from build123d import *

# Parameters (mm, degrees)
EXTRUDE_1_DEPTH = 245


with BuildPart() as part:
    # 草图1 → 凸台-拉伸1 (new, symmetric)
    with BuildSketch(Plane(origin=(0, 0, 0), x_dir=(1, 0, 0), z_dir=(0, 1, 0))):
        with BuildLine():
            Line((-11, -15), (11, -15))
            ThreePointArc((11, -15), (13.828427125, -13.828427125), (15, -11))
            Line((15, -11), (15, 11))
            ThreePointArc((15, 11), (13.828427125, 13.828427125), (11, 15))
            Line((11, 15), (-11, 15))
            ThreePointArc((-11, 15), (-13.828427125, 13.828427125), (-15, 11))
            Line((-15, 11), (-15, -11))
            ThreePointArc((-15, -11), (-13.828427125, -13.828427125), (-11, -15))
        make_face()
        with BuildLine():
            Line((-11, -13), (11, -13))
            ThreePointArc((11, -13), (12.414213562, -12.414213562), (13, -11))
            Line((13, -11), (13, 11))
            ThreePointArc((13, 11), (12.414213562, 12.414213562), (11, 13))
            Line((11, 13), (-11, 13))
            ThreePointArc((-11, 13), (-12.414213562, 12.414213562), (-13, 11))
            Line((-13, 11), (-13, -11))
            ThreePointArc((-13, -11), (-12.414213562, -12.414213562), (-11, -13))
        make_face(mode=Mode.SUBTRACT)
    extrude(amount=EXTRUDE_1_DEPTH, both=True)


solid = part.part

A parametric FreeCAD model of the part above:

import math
import FreeCAD as App
import Part
import Sketcher
from FreeCAD import Vector

doc = App.newDocument("Part")
params = doc.addObject("Spreadsheet::Sheet", "Params")
for row, (alias, value) in enumerate([
    ("sketch1_radius", "4 mm"),
    ("sketch1_radius2", "2 mm"),
    ("sketch1_width", "22 mm"),
    ("pad1_length", "490 mm"),
], start=1):
    params.set(f"A{row}", alias)
    params.set(f"B{row}", "=" + value)
    params.setAlias(f"B{row}", alias)

body = doc.addObject("PartDesign::Body", "Body")

# Sketch on XZ plane
sketch1 = body.newObject("Sketcher::SketchObject", "Sketch")
sketch1.AttachmentSupport = (doc.getObject("XZ_Plane"), [""])
sketch1.MapMode = "FlatFace"
sketch1.addGeometry(Part.LineSegment(Vector(-11, 15, 0), Vector(11, 15, 0)), False)
sketch1.addGeometry(Part.ArcOfCircle(Part.Circle(Vector(11, 11, 0), Vector(0, 0, 1), 4), math.radians(0), math.radians(90)), False)
sketch1.addGeometry(Part.LineSegment(Vector(15, 11, 0), Vector(15, -11, 0)), False)
sketch1.addGeometry(Part.ArcOfCircle(Part.Circle(Vector(11, -11, 0), Vector(0, 0, 1), 4), math.radians(-90), math.radians(0)), False)
sketch1.addGeometry(Part.LineSegment(Vector(11, -15, 0), Vector(-11, -15, 0)), False)
sketch1.addGeometry(Part.ArcOfCircle(Part.Circle(Vector(-11, -11, 0), Vector(0, 0, 1), 4), math.radians(180), math.radians(270)), False)
sketch1.addGeometry(Part.LineSegment(Vector(-15, -11, 0), Vector(-15, 11, 0)), False)
sketch1.addGeometry(Part.ArcOfCircle(Part.Circle(Vector(-11, 11, 0), Vector(0, 0, 1), 4), math.radians(90), math.radians(180)), False)
sketch1.addGeometry(Part.LineSegment(Vector(11, 13, 0), Vector(-11, 13, 0)), False)
sketch1.addGeometry(Part.ArcOfCircle(Part.Circle(Vector(-11, 11, 0), Vector(0, 0, 1), 2), math.radians(90), math.radians(180)), False)
sketch1.addGeometry(Part.LineSegment(Vector(-13, 11, 0), Vector(-13, -11, 0)), False)
sketch1.addGeometry(Part.ArcOfCircle(Part.Circle(Vector(-11, -11, 0), Vector(0, 0, 1), 2), math.radians(-180), math.radians(-90)), False)
sketch1.addGeometry(Part.LineSegment(Vector(-11, -13, 0), Vector(11, -13, 0)), False)
sketch1.addGeometry(Part.ArcOfCircle(Part.Circle(Vector(11, -11, 0), Vector(0, 0, 1), 2), math.radians(-90), math.radians(0)), False)
sketch1.addGeometry(Part.LineSegment(Vector(13, -11, 0), Vector(13, 11, 0)), False)
sketch1.addGeometry(Part.ArcOfCircle(Part.Circle(Vector(11, 11, 0), Vector(0, 0, 1), 2), math.radians(0), math.radians(90)), False)
sketch1.addConstraint(Sketcher.Constraint("Tangent", 0, 2, 1, 2))
sketch1.addConstraint(Sketcher.Constraint("Tangent", 1, 1, 2, 1))
sketch1.addConstraint(Sketcher.Constraint("Tangent", 2, 2, 3, 2))
sketch1.addConstraint(Sketcher.Constraint("Tangent", 3, 1, 4, 1))
sketch1.addConstraint(Sketcher.Constraint("Tangent", 4, 2, 5, 2))
sketch1.addConstraint(Sketcher.Constraint("Tangent", 5, 1, 6, 1))
sketch1.addConstraint(Sketcher.Constraint("Tangent", 6, 2, 7, 2))
sketch1.addConstraint(Sketcher.Constraint("Tangent", 7, 1, 0, 1))
sketch1.addConstraint(Sketcher.Constraint("Tangent", 8, 2, 9, 1))
sketch1.addConstraint(Sketcher.Constraint("Tangent", 9, 2, 10, 1))
sketch1.addConstraint(Sketcher.Constraint("Tangent", 10, 2, 11, 1))
sketch1.addConstraint(Sketcher.Constraint("Tangent", 11, 2, 12, 1))
sketch1.addConstraint(Sketcher.Constraint("Tangent", 12, 2, 13, 1))
sketch1.addConstraint(Sketcher.Constraint("Tangent", 13, 2, 14, 1))
sketch1.addConstraint(Sketcher.Constraint("Tangent", 14, 2, 15, 1))
sketch1.addConstraint(Sketcher.Constraint("Tangent", 15, 2, 8, 1))
sketch1.addConstraint(Sketcher.Constraint("Horizontal", 0))
sketch1.addConstraint(Sketcher.Constraint("Vertical", 2))
sketch1.addConstraint(Sketcher.Constraint("Horizontal", 4))
sketch1.addConstraint(Sketcher.Constraint("Vertical", 6))
sketch1.addConstraint(Sketcher.Constraint("Horizontal", 8))
sketch1.addConstraint(Sketcher.Constraint("Vertical", 10))
sketch1.addConstraint(Sketcher.Constraint("Horizontal", 12))
sketch1.addConstraint(Sketcher.Constraint("Vertical", 14))
sketch1.addConstraint(Sketcher.Constraint("Coincident", 9, 3, 7, 3))
sketch1.addConstraint(Sketcher.Constraint("Coincident", 11, 3, 5, 3))
sketch1.addConstraint(Sketcher.Constraint("Coincident", 13, 3, 3, 3))
sketch1.addConstraint(Sketcher.Constraint("Equal", 1, 3))
sketch1.addConstraint(Sketcher.Constraint("Equal", 3, 5))
sketch1.addConstraint(Sketcher.Constraint("Equal", 5, 7))
sketch1.addConstraint(Sketcher.Constraint("Equal", 13, 15))
sketch1.addConstraint(Sketcher.Constraint("Symmetric", 1, 3, 5, 3, -1, 1))
sketch1.addConstraint(Sketcher.Constraint("Equal", 12, 2))
sketch1.addConstraint(Sketcher.Constraint("Radius", 1, 4.0))
sketch1.addConstraint(Sketcher.Constraint("Radius", 9, 2.0))
sketch1.addConstraint(Sketcher.Constraint("DistanceX", 0, 1, 0, 2, 22.0))
sketch1.setExpression("Constraints[33]", "Params.sketch1_radius")
sketch1.setExpression("Constraints[34]", "Params.sketch1_radius2")
sketch1.setExpression("Constraints[35]", "Params.sketch1_width")
pad1 = body.newObject("PartDesign::Pad", "Pad")
pad1.Profile = sketch1
pad1.setExpression("Length", "Params.pad1_length")
pad1.Midplane = True

doc.recompute()
